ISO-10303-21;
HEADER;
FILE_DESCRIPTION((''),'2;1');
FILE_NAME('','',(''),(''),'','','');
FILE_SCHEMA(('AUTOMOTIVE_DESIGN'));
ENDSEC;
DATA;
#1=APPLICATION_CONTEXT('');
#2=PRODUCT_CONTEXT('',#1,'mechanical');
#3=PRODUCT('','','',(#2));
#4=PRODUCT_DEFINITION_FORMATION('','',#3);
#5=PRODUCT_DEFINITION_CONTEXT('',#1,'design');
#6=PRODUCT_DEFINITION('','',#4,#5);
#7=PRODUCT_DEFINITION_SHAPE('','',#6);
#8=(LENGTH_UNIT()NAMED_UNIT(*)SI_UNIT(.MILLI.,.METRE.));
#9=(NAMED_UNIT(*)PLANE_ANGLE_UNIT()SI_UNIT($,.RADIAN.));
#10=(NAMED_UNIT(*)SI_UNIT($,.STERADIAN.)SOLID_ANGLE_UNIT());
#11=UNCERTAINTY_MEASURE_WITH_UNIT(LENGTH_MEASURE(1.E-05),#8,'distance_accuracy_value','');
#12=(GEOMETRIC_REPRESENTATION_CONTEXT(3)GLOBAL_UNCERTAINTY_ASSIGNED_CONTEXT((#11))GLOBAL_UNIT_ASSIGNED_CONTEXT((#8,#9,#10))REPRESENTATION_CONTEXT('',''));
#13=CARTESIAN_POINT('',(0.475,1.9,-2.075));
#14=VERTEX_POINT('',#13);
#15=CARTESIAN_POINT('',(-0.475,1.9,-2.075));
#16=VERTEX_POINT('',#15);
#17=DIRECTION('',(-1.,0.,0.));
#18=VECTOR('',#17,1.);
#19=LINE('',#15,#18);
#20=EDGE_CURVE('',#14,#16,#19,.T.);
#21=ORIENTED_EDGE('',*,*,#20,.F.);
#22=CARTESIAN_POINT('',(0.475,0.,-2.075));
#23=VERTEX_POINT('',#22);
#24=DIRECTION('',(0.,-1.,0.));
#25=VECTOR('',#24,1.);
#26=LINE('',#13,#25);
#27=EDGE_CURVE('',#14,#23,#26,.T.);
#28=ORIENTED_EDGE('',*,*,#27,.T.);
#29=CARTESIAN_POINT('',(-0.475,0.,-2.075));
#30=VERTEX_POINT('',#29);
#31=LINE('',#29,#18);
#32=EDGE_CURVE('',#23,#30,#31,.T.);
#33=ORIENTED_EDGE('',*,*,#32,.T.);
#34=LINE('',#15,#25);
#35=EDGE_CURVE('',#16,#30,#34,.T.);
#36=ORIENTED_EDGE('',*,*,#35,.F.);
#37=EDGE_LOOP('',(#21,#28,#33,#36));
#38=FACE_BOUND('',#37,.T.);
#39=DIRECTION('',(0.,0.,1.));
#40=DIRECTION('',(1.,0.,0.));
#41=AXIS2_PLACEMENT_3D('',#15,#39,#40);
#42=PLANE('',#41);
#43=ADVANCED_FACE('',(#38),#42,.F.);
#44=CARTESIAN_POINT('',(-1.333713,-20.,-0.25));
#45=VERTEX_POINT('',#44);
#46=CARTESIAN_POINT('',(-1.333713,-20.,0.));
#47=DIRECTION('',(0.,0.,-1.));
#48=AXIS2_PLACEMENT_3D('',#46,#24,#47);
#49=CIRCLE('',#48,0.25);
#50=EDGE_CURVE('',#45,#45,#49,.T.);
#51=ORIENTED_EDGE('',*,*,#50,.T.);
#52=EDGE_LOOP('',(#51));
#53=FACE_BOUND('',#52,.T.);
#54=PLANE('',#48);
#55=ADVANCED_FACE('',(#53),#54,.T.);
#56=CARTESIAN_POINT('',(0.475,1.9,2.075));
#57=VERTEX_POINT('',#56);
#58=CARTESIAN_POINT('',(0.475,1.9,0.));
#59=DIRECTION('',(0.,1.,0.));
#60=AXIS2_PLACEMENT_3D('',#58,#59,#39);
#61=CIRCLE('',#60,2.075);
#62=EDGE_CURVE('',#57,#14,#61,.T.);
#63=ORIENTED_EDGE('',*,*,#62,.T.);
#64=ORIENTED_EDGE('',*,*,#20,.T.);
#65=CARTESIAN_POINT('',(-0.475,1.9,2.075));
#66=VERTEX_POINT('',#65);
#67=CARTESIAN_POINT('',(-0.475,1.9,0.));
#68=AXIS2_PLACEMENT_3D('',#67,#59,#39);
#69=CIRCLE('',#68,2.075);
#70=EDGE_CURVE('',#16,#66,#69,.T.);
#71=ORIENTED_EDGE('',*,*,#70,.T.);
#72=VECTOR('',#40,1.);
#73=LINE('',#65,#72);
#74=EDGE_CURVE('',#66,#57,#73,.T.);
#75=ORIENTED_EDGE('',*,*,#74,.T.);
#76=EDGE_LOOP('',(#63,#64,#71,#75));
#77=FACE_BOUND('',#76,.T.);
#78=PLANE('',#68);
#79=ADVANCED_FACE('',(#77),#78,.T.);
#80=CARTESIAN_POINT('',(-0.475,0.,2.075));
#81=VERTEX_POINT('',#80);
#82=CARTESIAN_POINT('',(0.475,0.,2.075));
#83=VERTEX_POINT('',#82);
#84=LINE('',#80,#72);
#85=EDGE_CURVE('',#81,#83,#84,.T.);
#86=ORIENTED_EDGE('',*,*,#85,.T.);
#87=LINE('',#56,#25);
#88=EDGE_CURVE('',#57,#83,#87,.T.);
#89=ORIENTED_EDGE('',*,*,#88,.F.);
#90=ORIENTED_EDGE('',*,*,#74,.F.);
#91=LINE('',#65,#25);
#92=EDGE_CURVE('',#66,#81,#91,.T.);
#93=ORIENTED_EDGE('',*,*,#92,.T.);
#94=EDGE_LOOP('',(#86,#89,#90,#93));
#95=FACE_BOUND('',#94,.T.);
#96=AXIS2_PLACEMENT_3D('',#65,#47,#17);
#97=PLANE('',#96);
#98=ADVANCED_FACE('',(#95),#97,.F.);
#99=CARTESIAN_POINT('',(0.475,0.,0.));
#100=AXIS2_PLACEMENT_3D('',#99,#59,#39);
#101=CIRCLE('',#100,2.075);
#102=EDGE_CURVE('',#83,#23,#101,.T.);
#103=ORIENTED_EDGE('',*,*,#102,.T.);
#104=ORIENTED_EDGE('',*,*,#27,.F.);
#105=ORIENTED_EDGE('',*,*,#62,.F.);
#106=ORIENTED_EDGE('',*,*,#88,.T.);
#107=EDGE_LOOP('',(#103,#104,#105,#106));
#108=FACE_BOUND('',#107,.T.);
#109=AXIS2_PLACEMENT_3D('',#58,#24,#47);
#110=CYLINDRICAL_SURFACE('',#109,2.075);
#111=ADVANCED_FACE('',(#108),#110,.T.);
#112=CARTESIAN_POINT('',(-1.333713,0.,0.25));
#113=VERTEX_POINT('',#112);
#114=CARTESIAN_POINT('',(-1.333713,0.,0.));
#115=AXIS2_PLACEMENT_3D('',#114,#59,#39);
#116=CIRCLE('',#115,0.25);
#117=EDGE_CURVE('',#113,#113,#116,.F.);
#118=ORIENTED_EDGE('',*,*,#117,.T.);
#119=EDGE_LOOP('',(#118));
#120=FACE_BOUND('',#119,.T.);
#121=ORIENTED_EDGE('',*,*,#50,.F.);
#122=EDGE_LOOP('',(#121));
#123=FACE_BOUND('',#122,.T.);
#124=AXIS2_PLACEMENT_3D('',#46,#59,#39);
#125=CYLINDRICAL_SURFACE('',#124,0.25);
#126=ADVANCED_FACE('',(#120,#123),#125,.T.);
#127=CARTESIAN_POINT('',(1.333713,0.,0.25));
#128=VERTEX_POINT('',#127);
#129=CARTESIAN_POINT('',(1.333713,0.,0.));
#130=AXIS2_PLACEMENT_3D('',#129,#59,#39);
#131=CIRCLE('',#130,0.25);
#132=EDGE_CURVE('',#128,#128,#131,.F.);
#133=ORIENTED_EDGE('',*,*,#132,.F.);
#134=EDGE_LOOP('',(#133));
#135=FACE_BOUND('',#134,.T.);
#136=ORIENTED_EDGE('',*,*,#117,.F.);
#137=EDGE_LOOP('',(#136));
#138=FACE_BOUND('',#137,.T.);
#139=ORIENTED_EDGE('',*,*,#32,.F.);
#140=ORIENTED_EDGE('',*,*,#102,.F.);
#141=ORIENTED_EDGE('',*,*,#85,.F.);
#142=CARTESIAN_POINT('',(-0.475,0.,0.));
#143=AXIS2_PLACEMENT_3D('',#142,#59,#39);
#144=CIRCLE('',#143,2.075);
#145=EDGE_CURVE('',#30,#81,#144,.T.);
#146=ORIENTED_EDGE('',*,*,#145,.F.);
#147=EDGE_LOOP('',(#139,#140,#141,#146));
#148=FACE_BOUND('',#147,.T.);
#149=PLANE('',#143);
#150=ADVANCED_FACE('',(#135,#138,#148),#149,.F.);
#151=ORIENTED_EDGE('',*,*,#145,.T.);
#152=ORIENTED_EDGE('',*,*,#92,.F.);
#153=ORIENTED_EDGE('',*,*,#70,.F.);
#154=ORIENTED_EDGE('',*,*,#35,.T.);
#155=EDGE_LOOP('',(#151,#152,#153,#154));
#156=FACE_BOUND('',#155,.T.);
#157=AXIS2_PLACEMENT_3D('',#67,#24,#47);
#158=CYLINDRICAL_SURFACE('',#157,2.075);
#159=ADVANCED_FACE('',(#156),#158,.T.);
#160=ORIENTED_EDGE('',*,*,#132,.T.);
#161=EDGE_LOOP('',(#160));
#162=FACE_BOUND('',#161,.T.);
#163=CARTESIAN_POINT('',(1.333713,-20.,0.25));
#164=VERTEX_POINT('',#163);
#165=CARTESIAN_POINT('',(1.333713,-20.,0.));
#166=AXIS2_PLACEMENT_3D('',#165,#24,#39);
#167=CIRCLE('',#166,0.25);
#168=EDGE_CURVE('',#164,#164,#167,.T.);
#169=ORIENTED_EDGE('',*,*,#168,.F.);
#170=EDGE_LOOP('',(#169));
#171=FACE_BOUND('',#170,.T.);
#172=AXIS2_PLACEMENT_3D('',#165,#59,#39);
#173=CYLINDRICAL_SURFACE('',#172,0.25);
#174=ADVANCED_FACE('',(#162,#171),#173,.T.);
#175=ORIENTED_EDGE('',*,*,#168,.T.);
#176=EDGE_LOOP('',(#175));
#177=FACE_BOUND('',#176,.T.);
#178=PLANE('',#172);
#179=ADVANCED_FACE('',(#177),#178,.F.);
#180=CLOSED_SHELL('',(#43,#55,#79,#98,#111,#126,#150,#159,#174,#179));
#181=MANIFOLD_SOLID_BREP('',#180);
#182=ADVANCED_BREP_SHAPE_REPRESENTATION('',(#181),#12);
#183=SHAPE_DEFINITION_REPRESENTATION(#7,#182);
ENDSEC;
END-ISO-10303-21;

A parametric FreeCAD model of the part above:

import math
import FreeCAD as App
import Part
import Sketcher

doc = App.newDocument("Part")
body = doc.addObject("PartDesign::Body", "Body")

# Sketch on XZ plane
sketch1 = body.newObject("Sketcher::SketchObject", "Sketch")
sketch1.AttachmentSupport = (doc.getObject("XZ_Plane"), [""])
sketch1.MapMode = "FlatFace"
sketch1.addGeometry(Part.LineSegment(App.Vector(0.475, -2.075, 0), App.Vector(-0.475, -2.075, 0)), False)
sketch1.addGeometry(Part.ArcOfCircle(Part.Circle(App.Vector(-0.475, 0, 0), App.Vector(0, 0, 1), 2.075), math.radians(90), math.radians(270)), False)
sketch1.addGeometry(Part.LineSegment(App.Vector(-0.475, 2.075, 0), App.Vector(0.475, 2.075, 0)), False)
sketch1.addGeometry(Part.ArcOfCircle(Part.Circle(App.Vector(0.475, 0, 0), App.Vector(0, 0, 1), 2.075), math.radians(-90), math.radians(90)), False)
sketch1.addConstraint(Sketcher.Constraint("Tangent", 0, 2, 1, 2))
sketch1.addConstraint(Sketcher.Constraint("Tangent", 1, 1, 2, 1))
sketch1.addConstraint(Sketcher.Constraint("Tangent", 2, 2, 3, 2))
sketch1.addConstraint(Sketcher.Constraint("Tangent", 3, 1, 0, 1))
sketch1.addConstraint(Sketcher.Constraint("Horizontal", 0))
sketch1.addConstraint(Sketcher.Constraint("Horizontal", 2))
sketch1.addConstraint(Sketcher.Constraint("Symmetric", 1, 3, 3, 3, -1, 1))
sketch1.addConstraint(Sketcher.Constraint("Radius", 1, 2.075))
sketch1.addConstraint(Sketcher.Constraint("DistanceX", 0, 2, 0, 1, 0.95))
pad1 = body.newObject("PartDesign::Pad", "Pad")
pad1.Profile = sketch1
pad1.Length = 1.9
pad1.Reversed = True

# Sketch on XZ plane
sketch2 = body.newObject("Sketcher::SketchObject", "Sketch001")
sketch2.AttachmentSupport = (doc.getObject("XZ_Plane"), [""])
sketch2.MapMode = "FlatFace"
sketch2.addGeometry(Part.Circle(App.Vector(-1.333713, 0, 0), App.Vector(0, 0, 1), 0.25), False)
sketch2.addGeometry(Part.Circle(App.Vector(1.333713, 0, 0), App.Vector(0, 0, 1), 0.25), False)
sketch2.addConstraint(Sketcher.Constraint("Equal", 0, 1))
sketch2.addConstraint(Sketcher.Constraint("Symmetric", 0, 3, 1, 3, -1, 1))
sketch2.addConstraint(Sketcher.Constraint("PointOnObject", 0, 3, -1))
sketch2.addConstraint(Sketcher.Constraint("Diameter", 0, 0.5))
sketch2.addConstraint(Sketcher.Constraint("DistanceX", 0, 3, -1, 1, 1.333713))
pad2 = body.newObject("PartDesign::Pad", "Pad001")
pad2.Profile = sketch2
pad2.Length = 20

doc.recompute()
